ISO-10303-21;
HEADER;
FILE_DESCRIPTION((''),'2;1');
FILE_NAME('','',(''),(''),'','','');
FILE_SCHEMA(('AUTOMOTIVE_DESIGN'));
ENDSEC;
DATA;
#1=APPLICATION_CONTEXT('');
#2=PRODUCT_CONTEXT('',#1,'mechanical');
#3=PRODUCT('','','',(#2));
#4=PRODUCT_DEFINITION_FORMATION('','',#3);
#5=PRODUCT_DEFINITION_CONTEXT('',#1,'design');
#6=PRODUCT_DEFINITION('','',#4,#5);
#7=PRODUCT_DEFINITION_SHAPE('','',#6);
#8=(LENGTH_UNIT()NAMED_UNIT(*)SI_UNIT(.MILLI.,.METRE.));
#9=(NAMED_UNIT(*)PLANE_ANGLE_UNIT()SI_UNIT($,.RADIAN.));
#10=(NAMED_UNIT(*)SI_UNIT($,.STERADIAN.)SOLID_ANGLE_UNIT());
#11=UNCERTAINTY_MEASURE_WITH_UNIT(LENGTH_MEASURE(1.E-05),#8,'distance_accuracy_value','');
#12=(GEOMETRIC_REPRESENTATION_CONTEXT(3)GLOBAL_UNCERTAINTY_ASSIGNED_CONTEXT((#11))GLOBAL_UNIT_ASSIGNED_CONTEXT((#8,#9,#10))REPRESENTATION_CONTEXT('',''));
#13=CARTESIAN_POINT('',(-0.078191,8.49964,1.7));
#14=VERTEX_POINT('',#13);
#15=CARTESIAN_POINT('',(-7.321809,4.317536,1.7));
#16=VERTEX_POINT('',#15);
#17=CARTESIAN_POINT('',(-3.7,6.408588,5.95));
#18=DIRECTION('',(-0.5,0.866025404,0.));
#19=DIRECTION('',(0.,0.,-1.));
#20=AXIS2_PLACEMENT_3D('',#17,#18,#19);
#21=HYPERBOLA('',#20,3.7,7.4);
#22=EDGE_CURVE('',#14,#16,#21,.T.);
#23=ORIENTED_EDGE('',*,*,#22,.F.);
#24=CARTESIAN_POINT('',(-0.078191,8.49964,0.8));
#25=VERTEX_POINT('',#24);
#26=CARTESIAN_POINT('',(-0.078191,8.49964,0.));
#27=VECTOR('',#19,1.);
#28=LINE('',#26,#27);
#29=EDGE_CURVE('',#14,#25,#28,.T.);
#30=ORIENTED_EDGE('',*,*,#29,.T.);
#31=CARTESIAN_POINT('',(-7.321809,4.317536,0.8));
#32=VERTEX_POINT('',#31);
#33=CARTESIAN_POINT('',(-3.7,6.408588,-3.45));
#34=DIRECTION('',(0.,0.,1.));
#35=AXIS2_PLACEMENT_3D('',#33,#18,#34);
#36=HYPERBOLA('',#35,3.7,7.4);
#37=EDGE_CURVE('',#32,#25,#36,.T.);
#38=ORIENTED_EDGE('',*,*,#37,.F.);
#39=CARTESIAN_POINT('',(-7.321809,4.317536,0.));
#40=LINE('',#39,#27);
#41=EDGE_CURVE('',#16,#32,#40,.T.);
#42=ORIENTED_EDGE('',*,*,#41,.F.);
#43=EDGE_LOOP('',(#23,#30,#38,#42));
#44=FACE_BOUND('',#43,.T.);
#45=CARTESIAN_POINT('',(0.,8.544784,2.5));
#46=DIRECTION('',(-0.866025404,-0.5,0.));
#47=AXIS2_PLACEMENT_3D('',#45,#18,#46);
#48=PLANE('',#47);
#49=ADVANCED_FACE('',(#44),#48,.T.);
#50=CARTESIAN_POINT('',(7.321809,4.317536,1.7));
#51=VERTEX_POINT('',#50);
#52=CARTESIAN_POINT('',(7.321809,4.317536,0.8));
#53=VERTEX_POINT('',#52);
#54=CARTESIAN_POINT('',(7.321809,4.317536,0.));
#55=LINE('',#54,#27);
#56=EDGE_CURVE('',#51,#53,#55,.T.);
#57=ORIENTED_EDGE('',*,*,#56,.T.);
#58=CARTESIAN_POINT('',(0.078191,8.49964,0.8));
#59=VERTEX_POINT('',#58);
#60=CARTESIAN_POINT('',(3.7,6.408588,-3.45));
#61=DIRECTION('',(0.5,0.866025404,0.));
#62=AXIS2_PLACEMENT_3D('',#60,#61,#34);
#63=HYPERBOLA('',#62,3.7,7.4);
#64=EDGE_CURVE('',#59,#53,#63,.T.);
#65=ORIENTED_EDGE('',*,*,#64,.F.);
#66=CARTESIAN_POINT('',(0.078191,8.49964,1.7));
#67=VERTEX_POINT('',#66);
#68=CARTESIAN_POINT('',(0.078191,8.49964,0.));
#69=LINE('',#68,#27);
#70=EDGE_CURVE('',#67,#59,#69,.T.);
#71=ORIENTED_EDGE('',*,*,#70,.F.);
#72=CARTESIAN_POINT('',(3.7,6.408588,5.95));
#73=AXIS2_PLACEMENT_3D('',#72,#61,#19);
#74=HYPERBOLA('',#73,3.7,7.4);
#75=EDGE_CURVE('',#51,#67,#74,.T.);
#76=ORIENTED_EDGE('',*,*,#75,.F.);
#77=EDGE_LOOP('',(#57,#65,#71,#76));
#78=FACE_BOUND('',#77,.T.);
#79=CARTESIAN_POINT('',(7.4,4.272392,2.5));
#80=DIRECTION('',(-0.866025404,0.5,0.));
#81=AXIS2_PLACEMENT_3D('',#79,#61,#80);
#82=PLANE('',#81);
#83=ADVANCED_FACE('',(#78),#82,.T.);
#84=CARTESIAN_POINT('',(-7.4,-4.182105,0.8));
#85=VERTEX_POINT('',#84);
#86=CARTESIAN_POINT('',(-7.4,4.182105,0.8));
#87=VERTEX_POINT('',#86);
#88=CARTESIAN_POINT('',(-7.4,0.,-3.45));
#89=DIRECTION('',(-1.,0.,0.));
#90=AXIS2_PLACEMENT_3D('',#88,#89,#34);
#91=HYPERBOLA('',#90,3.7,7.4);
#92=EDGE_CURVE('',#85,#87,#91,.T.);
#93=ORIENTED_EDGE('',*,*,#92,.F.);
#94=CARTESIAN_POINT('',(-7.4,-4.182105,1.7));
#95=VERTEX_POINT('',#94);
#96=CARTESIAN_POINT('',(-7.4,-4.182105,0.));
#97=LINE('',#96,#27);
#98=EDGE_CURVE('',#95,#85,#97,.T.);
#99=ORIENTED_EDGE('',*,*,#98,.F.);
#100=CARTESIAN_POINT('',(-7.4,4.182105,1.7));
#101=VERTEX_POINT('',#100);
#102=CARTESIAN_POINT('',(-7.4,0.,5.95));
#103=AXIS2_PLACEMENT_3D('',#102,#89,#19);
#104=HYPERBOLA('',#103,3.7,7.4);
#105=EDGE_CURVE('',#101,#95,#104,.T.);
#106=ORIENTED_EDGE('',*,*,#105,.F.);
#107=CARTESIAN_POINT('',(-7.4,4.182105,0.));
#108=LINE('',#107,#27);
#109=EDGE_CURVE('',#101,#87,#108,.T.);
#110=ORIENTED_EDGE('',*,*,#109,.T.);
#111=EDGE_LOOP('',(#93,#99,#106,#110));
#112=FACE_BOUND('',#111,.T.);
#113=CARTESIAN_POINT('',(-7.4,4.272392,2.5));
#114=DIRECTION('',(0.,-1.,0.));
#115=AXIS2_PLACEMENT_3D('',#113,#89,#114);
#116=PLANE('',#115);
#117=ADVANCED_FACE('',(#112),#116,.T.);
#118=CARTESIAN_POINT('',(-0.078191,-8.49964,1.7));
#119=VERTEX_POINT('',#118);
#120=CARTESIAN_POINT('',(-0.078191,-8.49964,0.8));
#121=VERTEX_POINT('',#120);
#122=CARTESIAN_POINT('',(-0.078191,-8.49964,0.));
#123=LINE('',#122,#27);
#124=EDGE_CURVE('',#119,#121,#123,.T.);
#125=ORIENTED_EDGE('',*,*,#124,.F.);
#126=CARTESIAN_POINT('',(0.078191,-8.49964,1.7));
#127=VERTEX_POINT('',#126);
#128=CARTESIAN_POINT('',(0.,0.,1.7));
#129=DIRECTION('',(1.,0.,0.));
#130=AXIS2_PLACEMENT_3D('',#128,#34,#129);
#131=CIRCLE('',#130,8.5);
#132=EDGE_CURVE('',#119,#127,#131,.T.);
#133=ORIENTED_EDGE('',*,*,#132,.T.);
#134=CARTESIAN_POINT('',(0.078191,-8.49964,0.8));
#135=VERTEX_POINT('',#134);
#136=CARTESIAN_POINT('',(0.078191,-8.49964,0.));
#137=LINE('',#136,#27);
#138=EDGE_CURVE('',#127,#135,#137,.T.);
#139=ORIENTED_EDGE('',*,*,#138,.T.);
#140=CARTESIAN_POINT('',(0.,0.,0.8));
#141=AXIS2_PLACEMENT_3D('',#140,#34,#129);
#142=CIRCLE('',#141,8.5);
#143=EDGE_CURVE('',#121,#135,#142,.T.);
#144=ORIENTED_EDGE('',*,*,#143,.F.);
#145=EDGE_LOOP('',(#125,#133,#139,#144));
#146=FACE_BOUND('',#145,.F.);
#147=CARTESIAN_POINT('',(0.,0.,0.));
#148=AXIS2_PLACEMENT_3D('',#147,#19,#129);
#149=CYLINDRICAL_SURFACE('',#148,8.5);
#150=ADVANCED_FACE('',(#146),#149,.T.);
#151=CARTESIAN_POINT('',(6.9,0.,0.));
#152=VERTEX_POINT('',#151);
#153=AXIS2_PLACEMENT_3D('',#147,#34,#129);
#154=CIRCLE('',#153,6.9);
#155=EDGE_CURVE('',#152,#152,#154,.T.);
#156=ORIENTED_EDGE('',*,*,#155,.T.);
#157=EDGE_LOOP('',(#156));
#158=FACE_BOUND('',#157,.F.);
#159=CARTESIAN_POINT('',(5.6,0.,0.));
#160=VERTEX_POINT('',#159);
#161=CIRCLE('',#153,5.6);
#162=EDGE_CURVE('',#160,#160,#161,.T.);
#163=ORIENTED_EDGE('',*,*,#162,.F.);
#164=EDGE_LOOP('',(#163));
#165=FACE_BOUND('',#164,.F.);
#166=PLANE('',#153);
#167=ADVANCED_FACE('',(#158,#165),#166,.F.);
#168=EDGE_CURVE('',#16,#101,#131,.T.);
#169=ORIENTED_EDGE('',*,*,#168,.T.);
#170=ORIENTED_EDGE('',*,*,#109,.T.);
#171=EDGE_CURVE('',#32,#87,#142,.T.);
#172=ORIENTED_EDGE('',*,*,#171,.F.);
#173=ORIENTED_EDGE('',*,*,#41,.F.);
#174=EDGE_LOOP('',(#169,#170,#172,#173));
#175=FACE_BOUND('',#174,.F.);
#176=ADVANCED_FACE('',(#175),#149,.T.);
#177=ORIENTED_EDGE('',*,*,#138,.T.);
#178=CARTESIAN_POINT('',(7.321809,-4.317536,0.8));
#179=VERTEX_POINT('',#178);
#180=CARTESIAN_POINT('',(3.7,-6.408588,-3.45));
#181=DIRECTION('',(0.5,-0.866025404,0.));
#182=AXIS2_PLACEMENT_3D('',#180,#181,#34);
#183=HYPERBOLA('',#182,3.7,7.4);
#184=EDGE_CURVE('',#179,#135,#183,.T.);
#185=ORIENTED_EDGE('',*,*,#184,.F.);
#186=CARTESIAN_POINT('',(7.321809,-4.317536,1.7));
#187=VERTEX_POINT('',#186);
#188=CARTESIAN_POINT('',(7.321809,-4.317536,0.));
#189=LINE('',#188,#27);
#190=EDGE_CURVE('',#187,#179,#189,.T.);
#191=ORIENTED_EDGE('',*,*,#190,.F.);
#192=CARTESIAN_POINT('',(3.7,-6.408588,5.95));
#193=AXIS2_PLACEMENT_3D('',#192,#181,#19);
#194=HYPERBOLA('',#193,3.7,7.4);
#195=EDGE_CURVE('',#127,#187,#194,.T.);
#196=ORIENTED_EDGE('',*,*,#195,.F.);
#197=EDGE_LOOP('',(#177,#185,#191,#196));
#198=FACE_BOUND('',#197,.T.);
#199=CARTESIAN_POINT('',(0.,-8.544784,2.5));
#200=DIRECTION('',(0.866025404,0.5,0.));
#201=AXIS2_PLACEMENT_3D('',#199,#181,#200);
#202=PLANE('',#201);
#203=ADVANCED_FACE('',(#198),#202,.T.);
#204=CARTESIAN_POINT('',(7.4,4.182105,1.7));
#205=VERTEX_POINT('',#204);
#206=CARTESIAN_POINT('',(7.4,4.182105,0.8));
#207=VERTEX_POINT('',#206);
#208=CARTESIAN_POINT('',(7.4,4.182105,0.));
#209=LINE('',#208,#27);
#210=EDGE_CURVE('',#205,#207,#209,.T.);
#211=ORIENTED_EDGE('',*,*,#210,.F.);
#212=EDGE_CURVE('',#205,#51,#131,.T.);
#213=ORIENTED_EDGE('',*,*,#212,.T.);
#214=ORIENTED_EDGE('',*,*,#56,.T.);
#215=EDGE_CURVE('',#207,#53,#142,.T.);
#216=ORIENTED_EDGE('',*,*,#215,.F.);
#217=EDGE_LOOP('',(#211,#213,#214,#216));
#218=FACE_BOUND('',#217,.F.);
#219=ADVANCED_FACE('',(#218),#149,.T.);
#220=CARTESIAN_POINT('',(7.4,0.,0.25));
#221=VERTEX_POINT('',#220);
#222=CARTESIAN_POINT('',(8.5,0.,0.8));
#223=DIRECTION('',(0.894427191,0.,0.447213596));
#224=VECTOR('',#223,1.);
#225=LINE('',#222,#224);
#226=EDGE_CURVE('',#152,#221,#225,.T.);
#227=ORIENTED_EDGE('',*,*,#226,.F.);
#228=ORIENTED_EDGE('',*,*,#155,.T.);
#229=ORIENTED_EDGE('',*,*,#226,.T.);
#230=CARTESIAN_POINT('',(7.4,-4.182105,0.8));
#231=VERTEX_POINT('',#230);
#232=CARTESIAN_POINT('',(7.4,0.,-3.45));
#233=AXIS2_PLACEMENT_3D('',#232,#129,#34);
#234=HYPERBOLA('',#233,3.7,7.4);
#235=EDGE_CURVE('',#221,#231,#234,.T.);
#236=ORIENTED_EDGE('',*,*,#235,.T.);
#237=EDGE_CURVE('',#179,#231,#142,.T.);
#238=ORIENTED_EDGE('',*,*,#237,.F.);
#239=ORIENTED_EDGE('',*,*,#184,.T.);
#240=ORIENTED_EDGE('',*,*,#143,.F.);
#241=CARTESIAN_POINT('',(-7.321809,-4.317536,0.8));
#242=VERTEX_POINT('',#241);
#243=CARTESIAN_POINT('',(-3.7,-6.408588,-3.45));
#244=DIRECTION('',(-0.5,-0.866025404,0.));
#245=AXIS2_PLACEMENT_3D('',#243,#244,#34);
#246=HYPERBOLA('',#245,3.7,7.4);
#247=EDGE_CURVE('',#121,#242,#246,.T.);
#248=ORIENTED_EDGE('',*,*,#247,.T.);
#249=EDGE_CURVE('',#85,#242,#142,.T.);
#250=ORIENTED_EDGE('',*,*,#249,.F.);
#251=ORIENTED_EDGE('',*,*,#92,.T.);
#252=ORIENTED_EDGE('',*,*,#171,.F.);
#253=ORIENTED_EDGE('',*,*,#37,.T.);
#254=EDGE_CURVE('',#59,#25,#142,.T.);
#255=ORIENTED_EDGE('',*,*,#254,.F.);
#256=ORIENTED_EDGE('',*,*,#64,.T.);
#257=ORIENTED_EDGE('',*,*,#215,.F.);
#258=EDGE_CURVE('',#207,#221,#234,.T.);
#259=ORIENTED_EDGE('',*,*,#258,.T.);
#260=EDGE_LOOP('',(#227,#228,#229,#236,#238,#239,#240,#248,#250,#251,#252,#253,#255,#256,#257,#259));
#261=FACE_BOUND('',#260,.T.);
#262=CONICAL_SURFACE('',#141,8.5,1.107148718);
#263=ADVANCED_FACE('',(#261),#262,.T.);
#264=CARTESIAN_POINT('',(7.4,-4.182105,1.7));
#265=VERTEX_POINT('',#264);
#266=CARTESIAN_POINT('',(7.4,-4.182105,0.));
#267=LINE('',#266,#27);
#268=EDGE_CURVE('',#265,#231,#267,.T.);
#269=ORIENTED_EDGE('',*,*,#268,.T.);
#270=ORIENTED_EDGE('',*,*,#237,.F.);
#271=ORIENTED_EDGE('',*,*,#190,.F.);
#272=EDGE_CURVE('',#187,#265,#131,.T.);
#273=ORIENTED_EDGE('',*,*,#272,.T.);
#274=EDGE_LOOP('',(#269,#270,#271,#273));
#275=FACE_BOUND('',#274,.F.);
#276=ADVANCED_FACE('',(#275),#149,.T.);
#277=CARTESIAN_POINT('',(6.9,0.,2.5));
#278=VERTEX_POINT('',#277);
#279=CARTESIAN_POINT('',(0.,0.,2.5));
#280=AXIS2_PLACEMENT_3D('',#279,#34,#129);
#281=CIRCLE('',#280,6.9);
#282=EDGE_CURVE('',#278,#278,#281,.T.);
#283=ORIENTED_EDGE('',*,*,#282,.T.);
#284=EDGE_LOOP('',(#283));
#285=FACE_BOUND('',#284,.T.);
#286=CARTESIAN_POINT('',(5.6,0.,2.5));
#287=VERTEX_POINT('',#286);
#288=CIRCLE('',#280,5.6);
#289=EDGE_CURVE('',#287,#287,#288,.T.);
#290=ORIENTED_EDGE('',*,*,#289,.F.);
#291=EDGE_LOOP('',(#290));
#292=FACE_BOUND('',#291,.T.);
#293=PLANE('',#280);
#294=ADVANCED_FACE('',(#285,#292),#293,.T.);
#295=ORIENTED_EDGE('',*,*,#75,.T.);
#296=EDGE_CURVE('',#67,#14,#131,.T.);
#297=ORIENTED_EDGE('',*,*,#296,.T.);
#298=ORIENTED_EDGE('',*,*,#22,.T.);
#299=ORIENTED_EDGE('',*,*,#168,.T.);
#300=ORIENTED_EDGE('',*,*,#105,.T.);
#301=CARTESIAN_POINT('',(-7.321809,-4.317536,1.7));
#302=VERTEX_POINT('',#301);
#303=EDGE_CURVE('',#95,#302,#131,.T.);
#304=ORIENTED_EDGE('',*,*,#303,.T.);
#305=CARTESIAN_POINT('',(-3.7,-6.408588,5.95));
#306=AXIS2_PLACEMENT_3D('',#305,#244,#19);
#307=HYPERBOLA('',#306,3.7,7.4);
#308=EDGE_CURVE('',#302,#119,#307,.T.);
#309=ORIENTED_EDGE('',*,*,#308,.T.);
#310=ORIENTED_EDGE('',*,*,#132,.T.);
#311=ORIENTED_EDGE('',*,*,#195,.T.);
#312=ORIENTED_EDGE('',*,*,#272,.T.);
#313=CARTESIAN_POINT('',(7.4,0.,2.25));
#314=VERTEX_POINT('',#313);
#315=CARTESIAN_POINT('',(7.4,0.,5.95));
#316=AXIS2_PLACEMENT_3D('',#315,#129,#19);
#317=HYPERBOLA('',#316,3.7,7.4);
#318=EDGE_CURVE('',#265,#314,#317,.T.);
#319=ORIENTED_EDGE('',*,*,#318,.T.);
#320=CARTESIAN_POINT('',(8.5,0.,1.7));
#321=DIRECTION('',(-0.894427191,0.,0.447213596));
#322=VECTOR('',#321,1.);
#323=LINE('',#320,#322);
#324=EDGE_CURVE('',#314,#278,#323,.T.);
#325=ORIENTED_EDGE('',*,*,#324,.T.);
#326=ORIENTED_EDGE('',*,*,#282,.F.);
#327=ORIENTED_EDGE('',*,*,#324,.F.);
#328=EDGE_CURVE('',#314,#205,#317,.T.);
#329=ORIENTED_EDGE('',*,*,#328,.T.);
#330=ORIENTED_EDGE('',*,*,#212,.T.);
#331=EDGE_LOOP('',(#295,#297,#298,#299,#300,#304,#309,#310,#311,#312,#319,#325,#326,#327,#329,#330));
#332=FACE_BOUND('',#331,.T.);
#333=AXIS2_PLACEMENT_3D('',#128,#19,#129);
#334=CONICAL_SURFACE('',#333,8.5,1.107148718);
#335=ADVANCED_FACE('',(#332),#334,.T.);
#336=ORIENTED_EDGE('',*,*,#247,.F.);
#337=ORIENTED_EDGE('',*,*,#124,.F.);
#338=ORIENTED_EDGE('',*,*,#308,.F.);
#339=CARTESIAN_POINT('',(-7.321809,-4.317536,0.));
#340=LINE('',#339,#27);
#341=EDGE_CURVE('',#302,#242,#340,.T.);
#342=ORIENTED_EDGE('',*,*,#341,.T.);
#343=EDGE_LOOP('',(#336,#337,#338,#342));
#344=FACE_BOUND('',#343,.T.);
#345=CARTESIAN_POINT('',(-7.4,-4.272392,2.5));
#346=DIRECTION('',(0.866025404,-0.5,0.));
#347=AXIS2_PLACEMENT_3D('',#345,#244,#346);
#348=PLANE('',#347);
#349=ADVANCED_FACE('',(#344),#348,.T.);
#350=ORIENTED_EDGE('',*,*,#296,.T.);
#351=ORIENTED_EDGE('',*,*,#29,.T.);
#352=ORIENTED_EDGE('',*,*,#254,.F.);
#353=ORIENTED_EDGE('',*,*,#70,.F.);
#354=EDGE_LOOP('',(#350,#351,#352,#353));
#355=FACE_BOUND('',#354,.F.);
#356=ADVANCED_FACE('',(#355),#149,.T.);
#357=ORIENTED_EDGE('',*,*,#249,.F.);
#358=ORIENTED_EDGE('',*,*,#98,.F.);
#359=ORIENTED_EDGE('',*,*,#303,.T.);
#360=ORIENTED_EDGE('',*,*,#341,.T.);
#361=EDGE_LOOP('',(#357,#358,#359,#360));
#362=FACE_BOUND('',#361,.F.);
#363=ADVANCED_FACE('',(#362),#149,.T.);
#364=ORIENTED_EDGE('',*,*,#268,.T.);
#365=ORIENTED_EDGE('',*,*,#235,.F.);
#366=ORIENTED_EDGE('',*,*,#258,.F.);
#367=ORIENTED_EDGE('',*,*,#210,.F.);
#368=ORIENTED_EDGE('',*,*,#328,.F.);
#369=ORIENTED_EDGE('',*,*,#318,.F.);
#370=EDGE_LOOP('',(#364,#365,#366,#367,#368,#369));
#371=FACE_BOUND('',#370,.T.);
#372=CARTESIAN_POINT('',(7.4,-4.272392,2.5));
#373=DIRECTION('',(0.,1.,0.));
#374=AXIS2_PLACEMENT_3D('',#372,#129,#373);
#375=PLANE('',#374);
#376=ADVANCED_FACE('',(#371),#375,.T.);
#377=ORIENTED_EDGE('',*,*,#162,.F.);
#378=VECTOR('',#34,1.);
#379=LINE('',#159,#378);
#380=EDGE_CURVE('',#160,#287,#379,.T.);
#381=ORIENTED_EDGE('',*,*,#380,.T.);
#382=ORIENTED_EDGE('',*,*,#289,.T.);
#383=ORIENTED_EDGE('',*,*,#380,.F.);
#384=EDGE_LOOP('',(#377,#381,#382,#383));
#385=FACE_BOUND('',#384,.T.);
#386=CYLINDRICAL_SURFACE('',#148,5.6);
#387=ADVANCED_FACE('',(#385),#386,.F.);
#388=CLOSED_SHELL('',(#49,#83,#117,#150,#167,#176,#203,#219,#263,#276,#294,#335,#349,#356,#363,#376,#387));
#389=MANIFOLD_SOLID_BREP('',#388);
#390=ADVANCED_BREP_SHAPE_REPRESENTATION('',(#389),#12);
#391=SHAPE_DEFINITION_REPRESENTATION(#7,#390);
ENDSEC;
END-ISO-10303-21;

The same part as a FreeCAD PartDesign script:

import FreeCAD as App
import Part
import Sketcher

V = App.Vector
Q = App.Units.Quantity


def edges_at(feature, points):
    """Names of the edges that pass closest to the given points."""
    edges = feature.Shape.Edges
    near = lambda p: min(range(len(edges)), key=lambda i: edges[i].distToShape(Part.Vertex(*p))[0])
    return sorted({f"Edge{near(p) + 1}" for p in points})


def add_polygon(sketch, points):
    """Adds a closed chain of lines whose ends are joined by coincident constraints."""
    first, n = sketch.GeometryCount, len(points)
    for a, b in zip(points, points[1:] + points[:1]):
        sketch.addGeometry(Part.LineSegment(App.Vector(*a, 0), App.Vector(*b, 0)), False)
    for i in range(n):
        sketch.addConstraint(Sketcher.Constraint("Coincident", first + i, 2, first + (i + 1) % n, 1))

doc = App.newDocument("Part")
params = doc.addObject("Spreadsheet::Sheet", "Params")
for row, (alias, value) in enumerate([
    ("sketch1_diameter", "17 mm"),
    ("sketch1_diameter2", "11.2 mm"),
    ("pad1_length", "2.5 mm"),
    ("chamfer_size", "0.8 mm"),
    ("chamfer_size2", "1.6 mm"),
    ("chamfer2_size", "1.6 mm"),
    ("chamfer2_size2", "0.8 mm"),
], start=1):
    params.set(f"A{row}", alias)
    params.set(f"B{row}", "=" + value)
    params.setAlias(f"B{row}", alias)

body = doc.addObject("PartDesign::Body", "Body")

# Sketch on XY plane
sketch1 = doc.addObject("Sketcher::SketchObject", "Sketch")
body.addObject(sketch1)
sketch1.AttachmentSupport = (doc.XY_Plane, [""])
sketch1.MapMode = "FlatFace"
sketch1.addGeometry([
    Part.Circle(V(0, 0, 0), V(0, 0, 1), 8),
    Part.Circle(V(0, 0, 0), V(0, 0, 1), 6),
], False)
sketch1.addConstraint([
    Sketcher.Constraint("Coincident", 0, 3, -1, 1),
    Sketcher.Constraint("Coincident", 1, 3, -1, 1),
    Sketcher.Constraint("Diameter", 0, Q("17 mm")),
    Sketcher.Constraint("Diameter", 1, Q("11.2 mm")),
])
sketch1.setExpression("Constraints[2]", "Params.sketch1_diameter")
sketch1.setExpression("Constraints[3]", "Params.sketch1_diameter2")
pad1 = doc.addObject("PartDesign::Pad", "Pad")
body.addObject(pad1)
pad1.Profile = sketch1
pad1.setExpression("Length", "Params.pad1_length")
doc.recompute()

chamfer = doc.addObject("PartDesign::Chamfer", "Chamfer")
body.addObject(chamfer)
chamfer.Base = (pad1, edges_at(pad1, [(-8.5, 0, 2.5)]))
chamfer.ChamferType = "Two distances"
chamfer.setExpression("Size", "Params.chamfer_size")
chamfer.setExpression("Size2", "Params.chamfer_size2")
doc.recompute()

chamfer2 = doc.addObject("PartDesign::Chamfer", "Chamfer001")
body.addObject(chamfer2)
chamfer2.Base = (chamfer, edges_at(chamfer, [(-8.5, 0, 0)]))
chamfer2.ChamferType = "Two distances"
chamfer2.setExpression("Size", "Params.chamfer2_size")
chamfer2.setExpression("Size2", "Params.chamfer2_size2")
chamfer2.FlipDirection = True

# Sketch on XY plane
sketch2 = doc.addObject("Sketcher::SketchObject", "Sketch001")
body.addObject(sketch2)
sketch2.AttachmentSupport = (doc.XY_Plane, [""])
sketch2.MapMode = "FlatFace"
sketch2.AttachmentOffset = App.Placement(V(0, 0, 2.5), App.Rotation())
add_polygon(sketch2, [(-12, 12), (-12, -12), (12, -12), (12, 12)])  # lines 0-3
add_polygon(sketch2, [(-7, 4), (0, 9), (7, 4), (7, -4), (0, -9), (-7, -4)])  # lines 4-9
sketch2.addConstraint([
    Sketcher.Constraint("Vertical", 0),
    Sketcher.Constraint("Horizontal", 1),
    Sketcher.Constraint("Vertical", 2),
    Sketcher.Constraint("Horizontal", 3),
    Sketcher.Constraint("Vertical", 6),
    Sketcher.Constraint("Vertical", 9),
    Sketcher.Constraint("Symmetric", 0, 2, 2, 2, -1, 1),
    Sketcher.Constraint("Symmetric", 4, 2, 7, 2, -1, 1),
    Sketcher.Constraint("Symmetric", 5, 2, 8, 2, -1, 1),
    Sketcher.Constraint("PointOnObject", 4, 2, -2),
    Sketcher.Constraint("Parallel", 4, 7),
    Sketcher.Constraint("Horizontal", 6, 2, 8, 2),
    Sketcher.Constraint("Equal", 3, 0),
    Sketcher.Constraint("Angle", 4, Q("30 deg")),
    Sketcher.Constraint("DistanceX", -1, 1, 5, 2, Q("7.4 mm")),
    Sketcher.Constraint("DistanceX", 1, 1, 1, 2, Q("23.834 mm")),
    Sketcher.Constraint("DistanceY", 6, 2, 6, 1, Q("8.544784 mm")),
])
pocket1 = doc.addObject("PartDesign::Pocket", "Pocket")
body.addObject(pocket1)
pocket1.Profile = sketch2
pocket1.Type = "ThroughAll"

doc.recompute()
